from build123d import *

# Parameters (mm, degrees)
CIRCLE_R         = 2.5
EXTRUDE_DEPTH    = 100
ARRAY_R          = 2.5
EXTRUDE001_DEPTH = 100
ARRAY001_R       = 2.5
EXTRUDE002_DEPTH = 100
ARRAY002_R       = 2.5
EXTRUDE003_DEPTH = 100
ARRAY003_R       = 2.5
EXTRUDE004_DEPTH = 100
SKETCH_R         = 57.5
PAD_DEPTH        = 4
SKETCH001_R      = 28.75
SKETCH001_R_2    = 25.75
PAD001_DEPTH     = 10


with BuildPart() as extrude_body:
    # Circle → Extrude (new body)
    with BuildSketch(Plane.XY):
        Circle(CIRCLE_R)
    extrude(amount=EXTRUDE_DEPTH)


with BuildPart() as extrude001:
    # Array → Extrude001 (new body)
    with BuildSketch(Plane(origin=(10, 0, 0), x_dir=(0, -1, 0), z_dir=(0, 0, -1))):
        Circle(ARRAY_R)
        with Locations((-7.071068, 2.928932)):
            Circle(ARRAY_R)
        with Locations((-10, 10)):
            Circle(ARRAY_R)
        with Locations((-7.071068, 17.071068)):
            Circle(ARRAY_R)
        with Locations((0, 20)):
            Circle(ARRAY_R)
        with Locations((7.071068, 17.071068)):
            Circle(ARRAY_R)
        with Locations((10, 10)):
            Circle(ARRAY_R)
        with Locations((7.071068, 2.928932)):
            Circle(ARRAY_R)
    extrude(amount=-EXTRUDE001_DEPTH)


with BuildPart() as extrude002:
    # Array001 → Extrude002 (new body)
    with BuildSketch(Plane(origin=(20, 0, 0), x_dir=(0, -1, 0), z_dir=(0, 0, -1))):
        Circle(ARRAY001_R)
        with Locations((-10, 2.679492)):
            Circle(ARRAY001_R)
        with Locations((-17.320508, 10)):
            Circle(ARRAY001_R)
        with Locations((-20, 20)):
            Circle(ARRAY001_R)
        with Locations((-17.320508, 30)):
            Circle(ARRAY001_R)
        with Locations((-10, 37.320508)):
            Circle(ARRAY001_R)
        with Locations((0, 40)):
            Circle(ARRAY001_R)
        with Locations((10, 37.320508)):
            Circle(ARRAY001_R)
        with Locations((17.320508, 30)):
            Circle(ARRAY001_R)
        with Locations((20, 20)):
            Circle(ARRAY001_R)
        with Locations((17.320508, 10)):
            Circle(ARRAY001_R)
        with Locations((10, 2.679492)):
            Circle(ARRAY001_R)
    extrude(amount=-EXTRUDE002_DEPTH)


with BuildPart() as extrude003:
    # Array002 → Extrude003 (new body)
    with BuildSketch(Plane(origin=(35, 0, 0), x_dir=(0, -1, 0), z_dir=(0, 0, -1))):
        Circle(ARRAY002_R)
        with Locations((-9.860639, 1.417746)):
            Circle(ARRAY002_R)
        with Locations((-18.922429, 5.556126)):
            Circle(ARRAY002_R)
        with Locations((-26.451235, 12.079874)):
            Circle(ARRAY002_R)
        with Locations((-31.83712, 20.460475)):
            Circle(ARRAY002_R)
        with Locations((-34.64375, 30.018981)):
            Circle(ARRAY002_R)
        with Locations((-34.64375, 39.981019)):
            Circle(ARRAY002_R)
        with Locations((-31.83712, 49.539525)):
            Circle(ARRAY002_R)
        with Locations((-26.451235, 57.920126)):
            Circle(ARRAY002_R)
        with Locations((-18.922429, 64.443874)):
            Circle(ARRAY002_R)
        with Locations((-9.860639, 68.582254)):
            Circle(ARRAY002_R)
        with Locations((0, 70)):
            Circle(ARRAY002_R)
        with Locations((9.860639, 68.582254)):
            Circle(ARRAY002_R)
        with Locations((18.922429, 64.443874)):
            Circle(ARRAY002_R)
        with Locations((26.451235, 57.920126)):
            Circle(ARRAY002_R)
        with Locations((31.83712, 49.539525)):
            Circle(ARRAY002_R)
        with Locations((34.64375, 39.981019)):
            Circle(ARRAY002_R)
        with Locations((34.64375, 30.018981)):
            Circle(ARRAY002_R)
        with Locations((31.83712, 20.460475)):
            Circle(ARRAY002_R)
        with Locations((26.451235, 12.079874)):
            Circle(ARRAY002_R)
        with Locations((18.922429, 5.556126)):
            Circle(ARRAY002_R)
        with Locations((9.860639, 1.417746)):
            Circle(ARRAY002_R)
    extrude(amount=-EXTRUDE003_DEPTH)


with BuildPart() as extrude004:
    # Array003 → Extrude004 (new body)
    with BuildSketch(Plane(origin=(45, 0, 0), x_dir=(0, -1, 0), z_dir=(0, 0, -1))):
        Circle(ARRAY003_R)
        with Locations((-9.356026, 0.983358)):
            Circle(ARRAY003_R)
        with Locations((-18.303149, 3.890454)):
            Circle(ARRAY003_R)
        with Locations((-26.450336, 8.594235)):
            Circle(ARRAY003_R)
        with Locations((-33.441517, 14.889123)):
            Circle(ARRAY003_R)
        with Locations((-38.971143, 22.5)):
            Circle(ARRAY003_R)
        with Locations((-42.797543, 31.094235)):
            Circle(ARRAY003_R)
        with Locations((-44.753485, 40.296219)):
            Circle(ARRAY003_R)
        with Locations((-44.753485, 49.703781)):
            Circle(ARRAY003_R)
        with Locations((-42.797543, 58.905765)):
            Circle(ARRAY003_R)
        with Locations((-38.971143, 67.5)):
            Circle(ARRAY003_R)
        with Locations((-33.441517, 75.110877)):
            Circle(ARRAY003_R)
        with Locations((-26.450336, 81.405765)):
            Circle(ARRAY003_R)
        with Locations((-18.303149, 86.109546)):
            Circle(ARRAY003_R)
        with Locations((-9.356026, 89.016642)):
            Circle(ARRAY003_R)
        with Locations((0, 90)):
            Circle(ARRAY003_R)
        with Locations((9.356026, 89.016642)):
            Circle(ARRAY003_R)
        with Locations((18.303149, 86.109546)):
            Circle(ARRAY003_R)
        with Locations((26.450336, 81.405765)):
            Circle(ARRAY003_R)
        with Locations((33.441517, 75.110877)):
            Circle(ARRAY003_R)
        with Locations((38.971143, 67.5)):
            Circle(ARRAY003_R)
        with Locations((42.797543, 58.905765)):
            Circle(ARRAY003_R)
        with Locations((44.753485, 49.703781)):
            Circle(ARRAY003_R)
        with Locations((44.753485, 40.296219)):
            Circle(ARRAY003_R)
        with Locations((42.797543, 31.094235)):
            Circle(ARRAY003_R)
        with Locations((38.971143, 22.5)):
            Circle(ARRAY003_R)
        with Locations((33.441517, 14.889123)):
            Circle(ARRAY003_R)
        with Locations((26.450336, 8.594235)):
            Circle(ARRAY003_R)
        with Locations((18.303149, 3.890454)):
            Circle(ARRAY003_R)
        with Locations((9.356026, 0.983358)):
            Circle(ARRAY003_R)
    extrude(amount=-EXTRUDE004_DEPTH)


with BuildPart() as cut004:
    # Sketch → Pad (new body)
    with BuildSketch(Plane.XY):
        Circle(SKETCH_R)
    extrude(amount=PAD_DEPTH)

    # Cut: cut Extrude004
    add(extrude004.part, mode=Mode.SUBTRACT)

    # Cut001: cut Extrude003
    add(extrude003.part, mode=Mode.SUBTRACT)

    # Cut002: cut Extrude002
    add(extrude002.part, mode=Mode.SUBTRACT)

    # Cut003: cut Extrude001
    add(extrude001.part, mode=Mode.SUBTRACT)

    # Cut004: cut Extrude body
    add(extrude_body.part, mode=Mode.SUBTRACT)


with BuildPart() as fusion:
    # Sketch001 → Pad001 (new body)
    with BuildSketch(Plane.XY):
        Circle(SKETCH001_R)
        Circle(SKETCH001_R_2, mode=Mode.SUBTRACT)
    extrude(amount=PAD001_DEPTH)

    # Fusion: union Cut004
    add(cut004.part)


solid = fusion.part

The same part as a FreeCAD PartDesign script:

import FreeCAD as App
import Part
import Sketcher

V = App.Vector
Q = App.Units.Quantity

doc = App.newDocument("Part")
body = doc.addObject("PartDesign::Body", "Body")

sketch1 = doc.addObject("Sketcher::SketchObject", "Sketch")
body.addObject(sketch1)
sketch1.AttachmentSupport = (doc.XY_Plane, [""])
sketch1.MapMode = "FlatFace"
sketch1.addGeometry(Part.Circle(V(0, 0, 0), V(0, 0, 1), 2.5), False)
sketch1.addConstraint([
    Sketcher.Constraint("Coincident", 0, 3, -1, 1),
    Sketcher.Constraint("Diameter", 0, Q("5 mm")),
])
pad1 = doc.addObject("PartDesign::Pad", "Pad")
body.addObject(pad1)
pad1.Profile = sketch1
pad1.Length = 100
body2 = doc.addObject("PartDesign::Body", "Body001")
body2.AllowCompound = True

sketch2 = doc.addObject("Sketcher::SketchObject", "Sketch001")
body2.addObject(sketch2)
sketch2.AttachmentSupport = (doc.getObject("XY_Plane001"), [""])
sketch2.MapMode = "FlatFace"
sketch2.addGeometry([
    Part.Circle(V(10, 0, 0), V(0, 0, 1), 2.5),
    Part.Circle(V(7.1, 7.1, 0), V(0, 0, 1), 2.5),
    Part.Circle(V(0, 10, 0), V(0, 0, 1), 2.5),
    Part.Circle(V(-7.1, 7.1, 0), V(0, 0, 1), 2.5),
    Part.Circle(V(-10, 0, 0), V(0, 0, 1), 2.5),
    Part.Circle(V(-7.1, -7.1, 0), V(0, 0, 1), 2.5),
    Part.Circle(V(0, -10, 0), V(0, 0, 1), 2.5),
    Part.Circle(V(7.1, -7.1, 0), V(0, 0, 1), 2.5),
], False)
sketch2.addConstraint([
    Sketcher.Constraint("Equal", 0, 1),
    Sketcher.Constraint("Equal", 1, 2),
    Sketcher.Constraint("Equal", 2, 3),
    Sketcher.Constraint("Equal", 3, 4),
    Sketcher.Constraint("Equal", 4, 5),
    Sketcher.Constraint("Equal", 5, 6),
    Sketcher.Constraint("Equal", 6, 7),
    Sketcher.Constraint("Symmetric", 0, 3, 4, 3, -1, 1),
    Sketcher.Constraint("Symmetric", 1, 3, 5, 3, -1, 1),
    Sketcher.Constraint("Symmetric", 2, 3, 6, 3, -1, 1),
    Sketcher.Constraint("Symmetric", 3, 3, 7, 3, -1, 1),
    Sketcher.Constraint("Symmetric", 1, 3, 3, 3, -2),
    Sketcher.Constraint("PointOnObject", 0, 3, -1),
    Sketcher.Constraint("PointOnObject", 2, 3, -2),
    Sketcher.Constraint("Diameter", 0, Q("5 mm")),
    Sketcher.Constraint("DistanceX", -1, 1, 0, 3, Q("10 mm")),
    Sketcher.Constraint("DistanceY", -1, 1, 2, 3, Q("10 mm")),
    Sketcher.Constraint("DistanceX", -1, 1, 1, 3, Q("7.071068 mm")),
    Sketcher.Constraint("DistanceY", -1, 1, 1, 3, Q("7.071068 mm")),
])
pad2 = doc.addObject("PartDesign::Pad", "Pad001")
body2.addObject(pad2)
pad2.Profile = sketch2
pad2.Length = 100
body3 = doc.addObject("PartDesign::Body", "Body002")
body3.AllowCompound = True

sketch3 = doc.addObject("Sketcher::SketchObject", "Sketch002")
body3.addObject(sketch3)
sketch3.AttachmentSupport = (doc.getObject("XY_Plane002"), [""])
sketch3.MapMode = "FlatFace"
sketch3.addGeometry([
    Part.Circle(V(20, 0, 0), V(0, 0, 1), 2.5),
    Part.Circle(V(17.3, 10, 0), V(0, 0, 1), 2.5),
    Part.Circle(V(10, 17.3, 0), V(0, 0, 1), 2.5),
    Part.Circle(V(0, 20, 0), V(0, 0, 1), 2.5),
    Part.Circle(V(-10, 17.3, 0), V(0, 0, 1), 2.5),
    Part.Circle(V(-17.3, 10, 0), V(0, 0, 1), 2.5),
    Part.Circle(V(-20, 0, 0), V(0, 0, 1), 2.5),
    Part.Circle(V(-17.3, -10, 0), V(0, 0, 1), 2.5),
    Part.Circle(V(-10, -17.3, 0), V(0, 0, 1), 2.5),
    Part.Circle(V(0, -20, 0), V(0, 0, 1), 2.5),
    Part.Circle(V(10, -17.3, 0), V(0, 0, 1), 2.5),
    Part.Circle(V(17.3, -10, 0), V(0, 0, 1), 2.5),
], False)
sketch3.addConstraint([
    Sketcher.Constraint("Equal", 0, 1),
    Sketcher.Constraint("Equal", 1, 2),
    Sketcher.Constraint("Equal", 2, 3),
    Sketcher.Constraint("Equal", 3, 4),
    Sketcher.Constraint("Equal", 4, 5),
    Sketcher.Constraint("Equal", 5, 6),
    Sketcher.Constraint("Equal", 6, 7),
    Sketcher.Constraint("Equal", 7, 8),
    Sketcher.Constraint("Equal", 8, 9),
    Sketcher.Constraint("Equal", 9, 10),
    Sketcher.Constraint("Equal", 10, 11),
    Sketcher.Constraint("Symmetric", 0, 3, 6, 3, -1, 1),
    Sketcher.Constraint("Symmetric", 1, 3, 7, 3, -1, 1),
    Sketcher.Constraint("Symmetric", 2, 3, 8, 3, -1, 1),
    Sketcher.Constraint("Symmetric", 3, 3, 9, 3, -1, 1),
    Sketcher.Constraint("Symmetric", 4, 3, 10, 3, -1, 1),
    Sketcher.Constraint("Symmetric", 5, 3, 11, 3, -1, 1),
    Sketcher.Constraint("Symmetric", 2, 3, 4, 3, -2),
    Sketcher.Constraint("Symmetric", 1, 3, 5, 3, -2),
    Sketcher.Constraint("PointOnObject", 0, 3, -1),
    Sketcher.Constraint("PointOnObject", 3, 3, -2),
    Sketcher.Constraint("Diameter", 0, Q("5 mm")),
    Sketcher.Constraint("DistanceX", -1, 1, 0, 3, Q("20 mm")),
    Sketcher.Constraint("DistanceY", -1, 1, 1, 3, Q("10 mm")),
    Sketcher.Constraint("DistanceX", -1, 1, 2, 3, Q("10 mm")),
    Sketcher.Constraint("DistanceY", -1, 1, 3, 3, Q("20 mm")),
    Sketcher.Constraint("DistanceX", -1, 1, 1, 3, Q("17.320508 mm")),
    Sketcher.Constraint("DistanceY", -1, 1, 2, 3, Q("17.320508 mm")),
])
pad3 = doc.addObject("PartDesign::Pad", "Pad002")
body3.addObject(pad3)
pad3.Profile = sketch3
pad3.Length = 100
body4 = doc.addObject("PartDesign::Body", "Body003")
body4.AllowCompound = True

sketch4 = doc.addObject("Sketcher::SketchObject", "Sketch003")
body4.addObject(sketch4)
sketch4.AttachmentSupport = (doc.getObject("XY_Plane003"), [""])
sketch4.MapMode = "FlatFace"
sketch4.addGeometry([
    Part.Circle(V(35, 0, 0), V(0, 0, 1), 2.5),
    Part.Circle(V(33.6, 9.9, 0), V(0, 0, 1), 2.5),
    Part.Circle(V(29.4, 18.9, 0), V(0, 0, 1), 2.5),
    Part.Circle(V(22.9, 26.5, 0), V(0, 0, 1), 2.5),
    Part.Circle(V(14.5, 31.8, 0), V(0, 0, 1), 2.5),
    Part.Circle(V(5, 34.6, 0), V(0, 0, 1), 2.5),
    Part.Circle(V(-5, 34.6, 0), V(0, 0, 1), 2.5),
    Part.Circle(V(-14.5, 31.8, 0), V(0, 0, 1), 2.5),
    Part.Circle(V(-22.9, 26.5, 0), V(0, 0, 1), 2.5),
    Part.Circle(V(-29.4, 18.9, 0), V(0, 0, 1), 2.5),
    Part.Circle(V(-33.6, 9.9, 0), V(0, 0, 1), 2.5),
    Part.Circle(V(-35, 0, 0), V(0, 0, 1), 2.5),
    Part.Circle(V(-33.6, -9.9, 0), V(0, 0, 1), 2.5),
    Part.Circle(V(-29.4, -18.9, 0), V(0, 0, 1), 2.5),
    Part.Circle(V(-22.9, -26.5, 0), V(0, 0, 1), 2.5),
    Part.Circle(V(-14.5, -31.8, 0), V(0, 0, 1), 2.5),
    Part.Circle(V(-5, -34.6, 0), V(0, 0, 1), 2.5),
    Part.Circle(V(5, -34.6, 0), V(0, 0, 1), 2.5),
    Part.Circle(V(14.5, -31.8, 0), V(0, 0, 1), 2.5),
    Part.Circle(V(22.9, -26.5, 0), V(0, 0, 1), 2.5),
    Part.Circle(V(29.4, -18.9, 0), V(0, 0, 1), 2.5),
    Part.Circle(V(33.6, -9.9, 0), V(0, 0, 1), 2.5),
], False)
sketch4.addConstraint([
    Sketcher.Constraint("Equal", 0, 1),
    Sketcher.Constraint("Equal", 1, 2),
    Sketcher.Constraint("Equal", 2, 3),
    Sketcher.Constraint("Equal", 3, 4),
    Sketcher.Constraint("Equal", 4, 5),
    Sketcher.Constraint("Equal", 5, 6),
    Sketcher.Constraint("Equal", 6, 7),
    Sketcher.Constraint("Equal", 7, 8),
    Sketcher.Constraint("Equal", 8, 9),
    Sketcher.Constraint("Equal", 9, 10),
    Sketcher.Constraint("Equal", 10, 11),
    Sketcher.Constraint("Equal", 11, 12),
    Sketcher.Constraint("Equal", 12, 13),
    Sketcher.Constraint("Equal", 13, 14),
    Sketcher.Constraint("Equal", 14, 15),
    Sketcher.Constraint("Equal", 15, 16),
    Sketcher.Constraint("Equal", 16, 17),
    Sketcher.Constraint("Equal", 17, 18),
    Sketcher.Constraint("Equal", 18, 19),
    Sketcher.Constraint("Equal", 19, 20),
    Sketcher.Constraint("Equal", 20, 21),
    Sketcher.Constraint("Symmetric", 0, 3, 11, 3, -1, 1),
    Sketcher.Constraint("Symmetric", 1, 3, 12, 3, -1, 1),
    Sketcher.Constraint("Symmetric", 2, 3, 13, 3, -1, 1),
    Sketcher.Constraint("Symmetric", 3, 3, 14, 3, -1, 1),
    Sketcher.Constraint("Symmetric", 4, 3, 15, 3, -1, 1),
    Sketcher.Constraint("Symmetric", 5, 3, 16, 3, -1, 1),
    Sketcher.Constraint("Symmetric", 6, 3, 17, 3, -1, 1),
    Sketcher.Constraint("Symmetric", 7, 3, 18, 3, -1, 1),
    Sketcher.Constraint("Symmetric", 8, 3, 19, 3, -1, 1),
    Sketcher.Constraint("Symmetric", 9, 3, 20, 3, -1, 1),
    Sketcher.Constraint("Symmetric", 10, 3, 21, 3, -1, 1),
    Sketcher.Constraint("Symmetric", 5, 3, 6, 3, -2),
    Sketcher.Constraint("Symmetric", 4, 3, 7, 3, -2),
    Sketcher.Constraint("Symmetric", 3, 3, 8, 3, -2),
    Sketcher.Constraint("Symmetric", 2, 3, 9, 3, -2),
    Sketcher.Constraint("Symmetric", 1, 3, 10, 3, -2),
    Sketcher.Constraint("PointOnObject", 0, 3, -1),
    Sketcher.Constraint("Diameter", 0, Q("5 mm")),
    Sketcher.Constraint("DistanceX", -1, 1, 0, 3, Q("35 mm")),
    Sketcher.Constraint("DistanceX", 4, 3, 3, 3, Q("8.380601 mm")),
    Sketcher.Constraint("DistanceX", 7, 3, 2, 3, Q("43.983399 mm")),
    Sketcher.Constraint("DistanceY", -1, 1, 1, 3, Q("9.860639 mm")),
    Sketcher.Constraint("DistanceY", -1, 1, 2, 3, Q("18.922429 mm")),
    Sketcher.Constraint("DistanceY", -1, 1, 4, 3, Q("31.83712 mm")),
    Sketcher.Constraint("DistanceX", -1, 1, 5, 3, Q("4.981019 mm")),
    Sketcher.Constraint("DistanceY", -1, 1, 5, 3, Q("34.64375 mm")),
    Sketcher.Constraint("DistanceX", 2, 3, 1, 3, Q("4.13838 mm")),
    Sketcher.Constraint("DistanceX", 3, 3, 2, 3, Q("6.523748 mm")),
    Sketcher.Constraint("DistanceY", -1, 1, 3, 3, Q("26.451235 mm")),
])
pad4 = doc.addObject("PartDesign::Pad", "Pad003")
body4.addObject(pad4)
pad4.Profile = sketch4
pad4.Length = 100
body5 = doc.addObject("PartDesign::Body", "Body004")
body5.AllowCompound = True

sketch5 = doc.addObject("Sketcher::SketchObject", "Sketch004")
body5.addObject(sketch5)
sketch5.AttachmentSupport = (doc.getObject("XY_Plane004"), [""])
sketch5.MapMode = "FlatFace"
sketch5.addGeometry([
    Part.Circle(V(45, 0, 0), V(0, 0, 1), 2.5),
    Part.Circle(V(44, 9.4, 0), V(0, 0, 1), 2.5),
    Part.Circle(V(41.1, 18.3, 0), V(0, 0, 1), 2.5),
    Part.Circle(V(36.4, 26.5, 0), V(0, 0, 1), 2.5),
    Part.Circle(V(30.1, 33.4, 0), V(0, 0, 1), 2.5),
    Part.Circle(V(22.5, 39, 0), V(0, 0, 1), 2.5),
    Part.Circle(V(13.9, 42.8, 0), V(0, 0, 1), 2.5),
    Part.Circle(V(4.7, 44.8, 0), V(0, 0, 1), 2.5),
    Part.Circle(V(-4.7, 44.8, 0), V(0, 0, 1), 2.5),
    Part.Circle(V(-13.9, 42.8, 0), V(0, 0, 1), 2.5),
    Part.Circle(V(-22.5, 39, 0), V(0, 0, 1), 2.5),
    Part.Circle(V(-30.1, 33.4, 0), V(0, 0, 1), 2.5),
    Part.Circle(V(-36.4, 26.5, 0), V(0, 0, 1), 2.5),
    Part.Circle(V(-41.1, 18.3, 0), V(0, 0, 1), 2.5),
    Part.Circle(V(-44, 9.4, 0), V(0, 0, 1), 2.5),
    Part.Circle(V(-45, 0, 0), V(0, 0, 1), 2.5),
    Part.Circle(V(-44, -9.4, 0), V(0, 0, 1), 2.5),
    Part.Circle(V(-41.1, -18.3, 0), V(0, 0, 1), 2.5),
    Part.Circle(V(-36.4, -26.5, 0), V(0, 0, 1), 2.5),
    Part.Circle(V(-30.1, -33.4, 0), V(0, 0, 1), 2.5),
    Part.Circle(V(-22.5, -39, 0), V(0, 0, 1), 2.5),
    Part.Circle(V(-13.9, -42.8, 0), V(0, 0, 1), 2.5),
    Part.Circle(V(-4.7, -44.8, 0), V(0, 0, 1), 2.5),
    Part.Circle(V(4.7, -44.8, 0), V(0, 0, 1), 2.5),
    Part.Circle(V(13.9, -42.8, 0), V(0, 0, 1), 2.5),
    Part.Circle(V(22.5, -39, 0), V(0, 0, 1), 2.5),
    Part.Circle(V(30.1, -33.4, 0), V(0, 0, 1), 2.5),
    Part.Circle(V(36.4, -26.5, 0), V(0, 0, 1), 2.5),
    Part.Circle(V(41.1, -18.3, 0), V(0, 0, 1), 2.5),
    Part.Circle(V(44, -9.4, 0), V(0, 0, 1), 2.5),
], False)
sketch5.addConstraint([
    Sketcher.Constraint("Equal", 0, 1),
    Sketcher.Constraint("Equal", 1, 2),
    Sketcher.Constraint("Equal", 2, 3),
    Sketcher.Constraint("Equal", 3, 4),
    Sketcher.Constraint("Equal", 4, 5),
    Sketcher.Constraint("Equal", 5, 6),
    Sketcher.Constraint("Equal", 6, 7),
    Sketcher.Constraint("Equal", 7, 8),
    Sketcher.Constraint("Equal", 8, 9),
    Sketcher.Constraint("Equal", 9, 10),
    Sketcher.Constraint("Equal", 10, 11),
    Sketcher.Constraint("Equal", 11, 12),
    Sketcher.Constraint("Equal", 12, 13),
    Sketcher.Constraint("Equal", 13, 14),
    Sketcher.Constraint("Equal", 14, 15),
    Sketcher.Constraint("Equal", 15, 16),
    Sketcher.Constraint("Equal", 16, 17),
    Sketcher.Constraint("Equal", 17, 18),
    Sketcher.Constraint("Equal", 18, 19),
    Sketcher.Constraint("Equal", 19, 20),
    Sketcher.Constraint("Equal", 20, 21),
    Sketcher.Constraint("Equal", 21, 22),
    Sketcher.Constraint("Equal", 22, 23),
    Sketcher.Constraint("Equal", 23, 24),
    Sketcher.Constraint("Equal", 24, 25),
    Sketcher.Constraint("Equal", 25, 26),
    Sketcher.Constraint("Equal", 26, 27),
    Sketcher.Constraint("Equal", 27, 28),
    Sketcher.Constraint("Equal", 28, 29),
    Sketcher.Constraint("Symmetric", 0, 3, 15, 3, -1, 1),
    Sketcher.Constraint("Symmetric", 1, 3, 16, 3, -1, 1),
    Sketcher.Constraint("Symmetric", 2, 3, 17, 3, -1, 1),
    Sketcher.Constraint("Symmetric", 3, 3, 18, 3, -1, 1),
    Sketcher.Constraint("Symmetric", 4, 3, 19, 3, -1, 1),
    Sketcher.Constraint("Symmetric", 5, 3, 20, 3, -1, 1),
    Sketcher.Constraint("Symmetric", 6, 3, 21, 3, -1, 1),
    Sketcher.Constraint("Symmetric", 7, 3, 22, 3, -1, 1),
    Sketcher.Constraint("Symmetric", 8, 3, 23, 3, -1, 1),
    Sketcher.Constraint("Symmetric", 9, 3, 24, 3, -1, 1),
    Sketcher.Constraint("Symmetric", 10, 3, 25, 3, -1, 1),
    Sketcher.Constraint("Symmetric", 11, 3, 26, 3, -1, 1),
    Sketcher.Constraint("Symmetric", 12, 3, 27, 3, -1, 1),
    Sketcher.Constraint("Symmetric", 13, 3, 28, 3, -1, 1),
    Sketcher.Constraint("Symmetric", 14, 3, 29, 3, -1, 1),
    Sketcher.Constraint("Symmetric", 7, 3, 8, 3, -2),
    Sketcher.Constraint("Symmetric", 6, 3, 9, 3, -2),
    Sketcher.Constraint("Symmetric", 5, 3, 10, 3, -2),
    Sketcher.Constraint("Symmetric", 4, 3, 11, 3, -2),
    Sketcher.Constraint("Symmetric", 3, 3, 12, 3, -2),
    Sketcher.Constraint("Symmetric", 2, 3, 13, 3, -2),
    Sketcher.Constraint("Symmetric", 1, 3, 14, 3, -2),
    Sketcher.Constraint("PointOnObject", 0, 3, -1),
    Sketcher.Constraint("Diameter", 0, Q("5 mm")),
    Sketcher.Constraint("DistanceX", -1, 1, 0, 3, Q("45 mm")),
    Sketcher.Constraint("DistanceX", 10, 3, 5, 3, Q("45 mm")),
    Sketcher.Constraint("DistanceX", 6, 3, 3, 3, Q("22.5 mm")),
    Sketcher.Constraint("DistanceY", 5, 3, 6, 3, Q("3.8264 mm")),
    Sketcher.Constraint("DistanceY", 17, 3, 13, 3, Q("36.606298 mm")),
    Sketcher.Constraint("DistanceX", -1, 1, 1, 3, Q("44.016642 mm")),
    Sketcher.Constraint("DistanceX", -1, 1, 7, 3, Q("4.703781 mm")),
    Sketcher.Constraint("DistanceX", 3, 3, 2, 3, Q("4.703781 mm")),
    Sketcher.Constraint("DistanceY", 1, 3, 3, 3, Q("17.09431 mm")),
    Sketcher.Constraint("DistanceX", 4, 3, 3, 3, Q("6.294888 mm")),
    Sketcher.Constraint("DistanceY", 3, 3, 4, 3, Q("6.991181 mm")),
    Sketcher.Constraint("DistanceY", 3, 3, 7, 3, Q("18.303149 mm")),
    Sketcher.Constraint("DistanceX", 9, 3, 6, 3, Q("27.81153 mm")),
    Sketcher.Constraint("DistanceY", 16, 3, 14, 3, Q("18.712052 mm")),
    Sketcher.Constraint("DistanceY", -1, 1, 5, 3, Q("38.971143 mm")),
])
pad5 = doc.addObject("PartDesign::Pad", "Pad004")
body5.addObject(pad5)
pad5.Profile = sketch5
pad5.Length = 100
body6 = doc.addObject("PartDesign::Body", "Body005")

sketch6 = doc.addObject("Sketcher::SketchObject", "Sketch005")
body6.addObject(sketch6)
sketch6.AttachmentSupport = (doc.getObject("XY_Plane005"), [""])
sketch6.MapMode = "FlatFace"
sketch6.addGeometry(Part.Circle(V(0, 0, 0), V(0, 0, 1), 58), False)
sketch6.addConstraint([
    Sketcher.Constraint("Coincident", 0, 3, -1, 1),
    Sketcher.Constraint("Diameter", 0, Q("115 mm")),
])
pad6 = doc.addObject("PartDesign::Pad", "Pad005")
body6.addObject(pad6)
pad6.Profile = sketch6
pad6.Length = 4
doc.recompute()

boolean = doc.addObject("PartDesign::Boolean", "Boolean")
body6.addObject(boolean)
boolean.Type = "Cut"
boolean.addObjects([body5])
doc.recompute()

boolean2 = doc.addObject("PartDesign::Boolean", "Boolean001")
body6.addObject(boolean2)
boolean2.Type = "Cut"
boolean2.addObjects([body4])
doc.recompute()

boolean3 = doc.addObject("PartDesign::Boolean", "Boolean002")
body6.addObject(boolean3)
boolean3.Type = "Cut"
boolean3.addObjects([body3])
doc.recompute()

boolean4 = doc.addObject("PartDesign::Boolean", "Boolean003")
body6.addObject(boolean4)
boolean4.Type = "Cut"
boolean4.addObjects([body2])
doc.recompute()

boolean5 = doc.addObject("PartDesign::Boolean", "Boolean004")
body6.addObject(boolean5)
boolean5.Type = "Cut"
boolean5.addObjects([body])
body7 = doc.addObject("PartDesign::Body", "Body006")

sketch7 = doc.addObject("Sketcher::SketchObject", "Sketch006")
body7.addObject(sketch7)
sketch7.AttachmentSupport = (doc.getObject("XY_Plane006"), [""])
sketch7.MapMode = "FlatFace"
sketch7.addGeometry([
    Part.Circle(V(0, 0, 0), V(0, 0, 1), 29),
    Part.Circle(V(0, 0, 0), V(0, 0, 1), 26),
], False)
sketch7.addConstraint([
    Sketcher.Constraint("Coincident", 0, 3, -1, 1),
    Sketcher.Constraint("Coincident", 1, 3, -1, 1),
    Sketcher.Constraint("Diameter", 0, Q("57.5 mm")),
    Sketcher.Constraint("Diameter", 1, Q("51.5 mm")),
])
pad7 = doc.addObject("PartDesign::Pad", "Pad006")
body7.addObject(pad7)
pad7.Profile = sketch7
pad7.Length = 10
doc.recompute()

boolean6 = doc.addObject("PartDesign::Boolean", "Boolean005")
body7.addObject(boolean6)
boolean6.Type = "Fuse"
boolean6.addObjects([body6])

doc.recompute()
